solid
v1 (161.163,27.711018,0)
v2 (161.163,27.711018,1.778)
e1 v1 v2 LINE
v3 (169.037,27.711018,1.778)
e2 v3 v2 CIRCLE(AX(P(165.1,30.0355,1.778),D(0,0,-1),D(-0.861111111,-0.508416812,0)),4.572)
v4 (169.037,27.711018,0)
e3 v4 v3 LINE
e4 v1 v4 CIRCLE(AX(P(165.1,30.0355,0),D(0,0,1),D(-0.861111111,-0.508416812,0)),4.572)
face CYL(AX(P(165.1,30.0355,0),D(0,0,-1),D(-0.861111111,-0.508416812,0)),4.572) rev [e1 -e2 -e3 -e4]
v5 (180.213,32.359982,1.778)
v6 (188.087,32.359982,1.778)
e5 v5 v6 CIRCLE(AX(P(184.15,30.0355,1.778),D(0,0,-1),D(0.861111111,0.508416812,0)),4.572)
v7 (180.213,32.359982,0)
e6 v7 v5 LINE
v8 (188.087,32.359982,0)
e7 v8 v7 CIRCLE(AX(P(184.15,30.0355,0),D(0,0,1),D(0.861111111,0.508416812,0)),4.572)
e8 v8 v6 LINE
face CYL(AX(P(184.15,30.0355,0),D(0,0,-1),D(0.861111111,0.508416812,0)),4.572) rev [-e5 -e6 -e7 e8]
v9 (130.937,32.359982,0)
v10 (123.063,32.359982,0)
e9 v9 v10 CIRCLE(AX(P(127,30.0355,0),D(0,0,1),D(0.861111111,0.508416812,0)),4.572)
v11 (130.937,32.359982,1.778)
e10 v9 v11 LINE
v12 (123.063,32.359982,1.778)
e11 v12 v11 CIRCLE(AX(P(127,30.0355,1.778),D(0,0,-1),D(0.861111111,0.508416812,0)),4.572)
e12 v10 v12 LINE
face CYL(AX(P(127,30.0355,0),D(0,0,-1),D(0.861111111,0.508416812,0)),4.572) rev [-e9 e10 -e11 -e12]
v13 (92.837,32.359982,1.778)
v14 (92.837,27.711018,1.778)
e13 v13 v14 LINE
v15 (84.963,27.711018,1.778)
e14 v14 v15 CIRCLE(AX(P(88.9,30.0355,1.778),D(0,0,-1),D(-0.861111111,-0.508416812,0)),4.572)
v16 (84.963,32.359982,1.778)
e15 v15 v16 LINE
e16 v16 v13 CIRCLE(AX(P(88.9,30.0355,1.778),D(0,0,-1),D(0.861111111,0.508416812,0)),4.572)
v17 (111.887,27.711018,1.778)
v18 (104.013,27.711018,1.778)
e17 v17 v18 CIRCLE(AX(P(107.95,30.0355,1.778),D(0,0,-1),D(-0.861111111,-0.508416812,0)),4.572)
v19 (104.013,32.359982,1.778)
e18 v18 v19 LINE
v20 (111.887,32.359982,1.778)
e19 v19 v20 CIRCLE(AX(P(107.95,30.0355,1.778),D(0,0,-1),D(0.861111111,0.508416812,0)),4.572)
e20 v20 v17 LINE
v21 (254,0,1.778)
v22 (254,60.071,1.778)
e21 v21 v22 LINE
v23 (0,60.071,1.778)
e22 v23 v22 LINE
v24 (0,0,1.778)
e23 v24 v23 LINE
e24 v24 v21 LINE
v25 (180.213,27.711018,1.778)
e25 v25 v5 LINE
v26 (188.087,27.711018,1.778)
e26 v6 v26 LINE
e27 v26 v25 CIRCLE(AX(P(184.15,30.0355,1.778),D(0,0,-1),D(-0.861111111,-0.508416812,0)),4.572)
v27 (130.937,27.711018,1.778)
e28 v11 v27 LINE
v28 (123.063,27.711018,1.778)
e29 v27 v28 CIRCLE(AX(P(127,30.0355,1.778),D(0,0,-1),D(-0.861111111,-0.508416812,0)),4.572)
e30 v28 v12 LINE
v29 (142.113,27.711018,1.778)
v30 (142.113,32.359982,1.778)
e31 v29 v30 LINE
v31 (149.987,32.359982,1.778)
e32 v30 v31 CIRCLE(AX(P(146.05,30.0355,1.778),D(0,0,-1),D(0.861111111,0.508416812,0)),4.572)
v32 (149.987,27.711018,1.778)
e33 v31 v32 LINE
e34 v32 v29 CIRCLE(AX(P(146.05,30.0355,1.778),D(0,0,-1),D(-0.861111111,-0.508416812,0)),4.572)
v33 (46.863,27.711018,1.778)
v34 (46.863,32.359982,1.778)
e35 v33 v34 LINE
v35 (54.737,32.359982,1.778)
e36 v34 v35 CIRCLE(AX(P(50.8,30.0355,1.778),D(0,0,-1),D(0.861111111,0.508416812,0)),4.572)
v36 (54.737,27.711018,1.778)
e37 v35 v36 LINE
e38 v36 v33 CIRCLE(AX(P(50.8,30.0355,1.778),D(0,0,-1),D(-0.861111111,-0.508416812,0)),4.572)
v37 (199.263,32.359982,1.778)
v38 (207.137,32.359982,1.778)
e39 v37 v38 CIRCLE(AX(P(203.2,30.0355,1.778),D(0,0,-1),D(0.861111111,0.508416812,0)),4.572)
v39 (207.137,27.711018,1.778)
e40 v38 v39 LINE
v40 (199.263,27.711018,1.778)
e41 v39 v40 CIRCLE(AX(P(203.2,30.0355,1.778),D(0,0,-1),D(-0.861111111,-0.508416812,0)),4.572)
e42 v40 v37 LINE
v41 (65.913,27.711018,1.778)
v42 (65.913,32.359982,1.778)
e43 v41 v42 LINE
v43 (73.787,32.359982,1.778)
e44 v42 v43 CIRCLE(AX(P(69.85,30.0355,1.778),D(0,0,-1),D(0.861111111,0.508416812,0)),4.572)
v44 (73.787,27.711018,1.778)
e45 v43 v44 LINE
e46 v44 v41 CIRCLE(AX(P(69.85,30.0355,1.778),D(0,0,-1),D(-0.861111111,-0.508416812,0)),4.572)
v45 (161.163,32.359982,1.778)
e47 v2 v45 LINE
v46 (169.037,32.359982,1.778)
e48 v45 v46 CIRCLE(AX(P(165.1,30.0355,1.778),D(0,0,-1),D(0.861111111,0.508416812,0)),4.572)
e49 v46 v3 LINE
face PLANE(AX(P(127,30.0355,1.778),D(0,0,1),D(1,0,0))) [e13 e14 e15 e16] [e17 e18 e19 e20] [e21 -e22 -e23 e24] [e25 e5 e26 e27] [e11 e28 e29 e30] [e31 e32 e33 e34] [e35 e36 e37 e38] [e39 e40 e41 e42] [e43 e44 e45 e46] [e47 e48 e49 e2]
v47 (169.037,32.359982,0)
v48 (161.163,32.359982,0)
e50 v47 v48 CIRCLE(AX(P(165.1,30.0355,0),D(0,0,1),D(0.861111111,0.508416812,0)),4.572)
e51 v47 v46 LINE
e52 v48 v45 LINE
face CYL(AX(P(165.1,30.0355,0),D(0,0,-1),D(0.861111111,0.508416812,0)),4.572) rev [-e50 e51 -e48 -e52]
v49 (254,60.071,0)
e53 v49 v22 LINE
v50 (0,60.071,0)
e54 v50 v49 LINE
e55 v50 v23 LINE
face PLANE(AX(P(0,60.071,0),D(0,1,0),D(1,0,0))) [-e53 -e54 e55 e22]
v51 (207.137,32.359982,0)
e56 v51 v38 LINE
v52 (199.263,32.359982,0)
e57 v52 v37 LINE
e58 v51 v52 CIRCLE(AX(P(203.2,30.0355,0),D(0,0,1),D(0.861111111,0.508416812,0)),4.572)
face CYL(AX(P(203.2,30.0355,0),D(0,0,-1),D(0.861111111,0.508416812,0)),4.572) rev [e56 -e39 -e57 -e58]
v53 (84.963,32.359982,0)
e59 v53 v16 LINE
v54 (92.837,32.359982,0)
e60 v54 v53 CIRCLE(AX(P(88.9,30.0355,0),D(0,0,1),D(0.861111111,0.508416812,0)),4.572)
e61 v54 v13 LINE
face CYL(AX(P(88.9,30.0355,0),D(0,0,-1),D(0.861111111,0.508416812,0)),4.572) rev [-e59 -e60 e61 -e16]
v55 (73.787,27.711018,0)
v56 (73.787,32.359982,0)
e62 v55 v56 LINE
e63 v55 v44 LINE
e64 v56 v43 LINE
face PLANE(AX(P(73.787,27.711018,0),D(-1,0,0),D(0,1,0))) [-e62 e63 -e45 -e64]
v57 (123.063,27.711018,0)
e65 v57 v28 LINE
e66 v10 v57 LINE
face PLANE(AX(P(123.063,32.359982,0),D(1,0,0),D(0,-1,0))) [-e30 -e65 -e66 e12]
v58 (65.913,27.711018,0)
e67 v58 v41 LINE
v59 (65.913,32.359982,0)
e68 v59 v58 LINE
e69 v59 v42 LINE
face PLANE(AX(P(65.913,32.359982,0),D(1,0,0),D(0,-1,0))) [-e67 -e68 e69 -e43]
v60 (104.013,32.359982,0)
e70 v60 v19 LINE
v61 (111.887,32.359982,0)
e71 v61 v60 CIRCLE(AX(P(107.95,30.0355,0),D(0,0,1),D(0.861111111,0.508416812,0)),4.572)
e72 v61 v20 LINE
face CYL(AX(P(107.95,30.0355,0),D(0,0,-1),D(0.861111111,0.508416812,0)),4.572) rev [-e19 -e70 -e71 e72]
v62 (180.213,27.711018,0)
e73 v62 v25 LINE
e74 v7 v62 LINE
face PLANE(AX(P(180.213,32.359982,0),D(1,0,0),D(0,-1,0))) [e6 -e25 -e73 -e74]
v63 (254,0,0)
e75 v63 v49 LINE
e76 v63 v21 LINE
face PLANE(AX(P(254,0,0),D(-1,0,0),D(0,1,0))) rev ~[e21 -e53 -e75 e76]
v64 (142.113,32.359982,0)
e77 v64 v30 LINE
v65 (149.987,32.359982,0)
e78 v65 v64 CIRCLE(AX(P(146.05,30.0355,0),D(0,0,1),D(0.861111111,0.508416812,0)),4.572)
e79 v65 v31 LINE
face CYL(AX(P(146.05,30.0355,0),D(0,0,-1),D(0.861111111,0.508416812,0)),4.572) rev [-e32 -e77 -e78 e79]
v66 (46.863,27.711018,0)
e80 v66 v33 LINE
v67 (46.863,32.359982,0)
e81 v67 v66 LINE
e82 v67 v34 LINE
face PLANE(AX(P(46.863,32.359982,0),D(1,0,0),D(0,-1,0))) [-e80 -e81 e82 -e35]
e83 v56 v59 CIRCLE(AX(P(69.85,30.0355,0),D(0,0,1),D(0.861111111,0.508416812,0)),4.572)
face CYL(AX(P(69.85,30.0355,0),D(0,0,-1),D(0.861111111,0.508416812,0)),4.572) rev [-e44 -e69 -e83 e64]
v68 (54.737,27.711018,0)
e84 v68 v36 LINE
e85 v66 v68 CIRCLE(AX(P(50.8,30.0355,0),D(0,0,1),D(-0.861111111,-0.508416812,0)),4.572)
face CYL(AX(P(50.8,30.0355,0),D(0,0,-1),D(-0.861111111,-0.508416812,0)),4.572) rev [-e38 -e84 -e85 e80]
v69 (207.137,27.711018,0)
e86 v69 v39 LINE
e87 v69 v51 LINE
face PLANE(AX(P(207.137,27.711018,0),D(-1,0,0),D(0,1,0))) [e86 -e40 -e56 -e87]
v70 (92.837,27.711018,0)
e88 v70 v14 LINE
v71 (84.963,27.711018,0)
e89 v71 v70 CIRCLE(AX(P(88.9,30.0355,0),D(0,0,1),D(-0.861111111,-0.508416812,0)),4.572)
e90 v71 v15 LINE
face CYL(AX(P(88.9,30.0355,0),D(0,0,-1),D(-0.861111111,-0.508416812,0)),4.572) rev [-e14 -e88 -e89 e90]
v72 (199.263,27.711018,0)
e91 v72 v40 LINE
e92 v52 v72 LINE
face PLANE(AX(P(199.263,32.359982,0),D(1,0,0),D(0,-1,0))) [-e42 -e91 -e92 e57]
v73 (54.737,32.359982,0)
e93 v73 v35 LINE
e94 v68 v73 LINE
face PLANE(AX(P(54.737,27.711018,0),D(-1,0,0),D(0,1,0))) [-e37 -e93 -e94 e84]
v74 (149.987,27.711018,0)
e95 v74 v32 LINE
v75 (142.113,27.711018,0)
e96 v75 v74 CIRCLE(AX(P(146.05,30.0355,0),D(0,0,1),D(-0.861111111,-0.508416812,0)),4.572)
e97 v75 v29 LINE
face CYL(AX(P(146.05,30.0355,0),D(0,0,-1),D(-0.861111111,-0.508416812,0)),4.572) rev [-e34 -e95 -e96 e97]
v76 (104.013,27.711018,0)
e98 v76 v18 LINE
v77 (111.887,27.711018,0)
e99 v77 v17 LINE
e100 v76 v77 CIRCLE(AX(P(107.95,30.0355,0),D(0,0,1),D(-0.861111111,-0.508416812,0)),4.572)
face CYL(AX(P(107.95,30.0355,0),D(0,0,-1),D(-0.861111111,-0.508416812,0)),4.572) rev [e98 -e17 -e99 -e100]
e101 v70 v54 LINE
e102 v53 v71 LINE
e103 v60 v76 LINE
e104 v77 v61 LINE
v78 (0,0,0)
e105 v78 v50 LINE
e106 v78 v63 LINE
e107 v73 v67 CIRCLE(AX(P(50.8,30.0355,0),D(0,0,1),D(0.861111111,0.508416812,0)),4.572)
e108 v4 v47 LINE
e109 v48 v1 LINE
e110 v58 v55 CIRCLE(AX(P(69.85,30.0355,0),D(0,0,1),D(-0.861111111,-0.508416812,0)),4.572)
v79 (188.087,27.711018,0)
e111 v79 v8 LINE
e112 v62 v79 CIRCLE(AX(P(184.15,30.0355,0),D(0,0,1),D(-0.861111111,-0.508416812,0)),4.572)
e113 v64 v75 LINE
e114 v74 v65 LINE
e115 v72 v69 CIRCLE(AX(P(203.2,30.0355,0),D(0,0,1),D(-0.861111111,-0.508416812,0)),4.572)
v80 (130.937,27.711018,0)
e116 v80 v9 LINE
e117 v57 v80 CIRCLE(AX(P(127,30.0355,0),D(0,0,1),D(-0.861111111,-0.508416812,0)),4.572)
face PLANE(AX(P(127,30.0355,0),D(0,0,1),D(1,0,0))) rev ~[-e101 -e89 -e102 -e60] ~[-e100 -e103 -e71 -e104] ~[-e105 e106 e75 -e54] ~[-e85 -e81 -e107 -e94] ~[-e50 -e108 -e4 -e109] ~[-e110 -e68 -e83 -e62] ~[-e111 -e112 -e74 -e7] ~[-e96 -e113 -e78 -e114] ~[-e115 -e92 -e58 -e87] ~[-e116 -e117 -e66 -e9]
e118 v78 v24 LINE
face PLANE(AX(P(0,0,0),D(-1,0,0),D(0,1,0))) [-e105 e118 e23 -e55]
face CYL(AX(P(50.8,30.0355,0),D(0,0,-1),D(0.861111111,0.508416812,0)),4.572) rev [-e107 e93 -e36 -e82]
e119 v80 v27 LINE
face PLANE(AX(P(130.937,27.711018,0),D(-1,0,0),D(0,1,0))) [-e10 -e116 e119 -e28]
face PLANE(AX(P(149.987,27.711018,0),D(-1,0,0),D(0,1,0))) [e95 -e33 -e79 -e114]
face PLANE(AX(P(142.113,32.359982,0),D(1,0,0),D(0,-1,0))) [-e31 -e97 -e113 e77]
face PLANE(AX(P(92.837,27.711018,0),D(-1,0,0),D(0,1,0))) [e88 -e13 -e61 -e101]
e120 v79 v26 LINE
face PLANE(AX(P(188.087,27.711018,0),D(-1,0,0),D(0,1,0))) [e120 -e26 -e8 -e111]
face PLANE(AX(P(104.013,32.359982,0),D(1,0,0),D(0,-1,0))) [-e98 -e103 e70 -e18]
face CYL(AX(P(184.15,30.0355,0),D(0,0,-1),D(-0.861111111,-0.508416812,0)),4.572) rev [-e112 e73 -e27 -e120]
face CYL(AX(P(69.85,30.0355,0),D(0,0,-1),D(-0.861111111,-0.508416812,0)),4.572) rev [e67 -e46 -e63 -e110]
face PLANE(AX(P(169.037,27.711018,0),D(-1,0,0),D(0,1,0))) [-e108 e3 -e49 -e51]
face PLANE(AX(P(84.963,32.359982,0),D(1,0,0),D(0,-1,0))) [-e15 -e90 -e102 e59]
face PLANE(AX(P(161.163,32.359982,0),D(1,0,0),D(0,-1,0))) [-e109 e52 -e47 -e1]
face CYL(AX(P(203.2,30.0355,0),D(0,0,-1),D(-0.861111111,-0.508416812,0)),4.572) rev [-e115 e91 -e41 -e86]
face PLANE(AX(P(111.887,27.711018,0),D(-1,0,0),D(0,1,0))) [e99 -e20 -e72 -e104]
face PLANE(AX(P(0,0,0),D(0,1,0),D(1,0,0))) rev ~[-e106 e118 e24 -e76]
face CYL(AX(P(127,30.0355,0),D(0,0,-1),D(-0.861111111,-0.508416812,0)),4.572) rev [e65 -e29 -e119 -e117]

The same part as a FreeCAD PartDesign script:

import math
import FreeCAD as App
import Part
import Sketcher
Q = App.Units.Quantity


def add_polygon(sketch, points):
    """Adds a closed chain of lines whose ends are joined by coincident constraints."""
    first, n = sketch.GeometryCount, len(points)
    for a, b in zip(points, points[1:] + points[:1]):
        sketch.addGeometry(Part.LineSegment(App.Vector(*a, 0), App.Vector(*b, 0)), False)
    for i in range(n):
        sketch.addConstraint(Sketcher.Constraint("Coincident", first + i, 2, first + (i + 1) % n, 1))

doc = App.newDocument("Part")
body = doc.addObject("PartDesign::Body", "Body")

# Sketch on XY plane
sketch1 = body.newObject("Sketcher::SketchObject", "Sketch")
sketch1.AttachmentSupport = (doc.getObject("XY_Plane"), [""])
sketch1.MapMode = "FlatFace"
add_polygon(sketch1, [(0, 60), (0, 0), (254, 0), (254, 60)])  # lines 0-3
sketch1.addConstraint(Sketcher.Constraint("Vertical", 0))
sketch1.addConstraint(Sketcher.Constraint("Horizontal", 1))
sketch1.addConstraint(Sketcher.Constraint("Vertical", 2))
sketch1.addConstraint(Sketcher.Constraint("Horizontal", 3))
sketch1.addConstraint(Sketcher.Constraint("Coincident", 0, 2, -1, 1))
sketch1.addConstraint(Sketcher.Constraint("DistanceX", 1, 1, 1, 2, Q("10 in")))
sketch1.addConstraint(Sketcher.Constraint("DistanceY", 0, 2, 0, 1, Q("2.365 in")))
pad1 = body.newObject("PartDesign::Pad", "Pad")
pad1.Profile = sketch1
pad1.Length = Q("0.07 in")

# Sketch on XY plane
sketch2 = body.newObject("Sketcher::SketchObject", "Sketch001")
sketch2.AttachmentSupport = (doc.getObject("XY_Plane"), [""])
sketch2.MapMode = "FlatFace"
sketch2.addGeometry(Part.LineSegment(App.Vector(46.9, 32.4, 0), App.Vector(46.9, 27.7, 0)), False)
sketch2.addGeometry(Part.ArcOfCircle(Part.Circle(App.Vector(50.8, 30, 0), App.Vector(0, 0, 1), 4.6), math.radians(-149), math.radians(-31)), False)
sketch2.addGeometry(Part.LineSegment(App.Vector(54.7, 27.7, 0), App.Vector(54.7, 32.4, 0)), False)
sketch2.addGeometry(Part.ArcOfCircle(Part.Circle(App.Vector(50.8, 30, 0), App.Vector(0, 0, 1), 4.6), math.radians(31), math.radians(149)), False)
sketch2.addConstraint(Sketcher.Constraint("Coincident", 0, 2, 1, 1))
sketch2.addConstraint(Sketcher.Constraint("Coincident", 1, 2, 2, 1))
sketch2.addConstraint(Sketcher.Constraint("Coincident", 2, 2, 3, 1))
sketch2.addConstraint(Sketcher.Constraint("Coincident", 3, 2, 0, 1))
sketch2.addConstraint(Sketcher.Constraint("Vertical", 0))
sketch2.addConstraint(Sketcher.Constraint("Vertical", 2))
sketch2.addConstraint(Sketcher.Constraint("Coincident", 3, 3, 1, 3))
sketch2.addConstraint(Sketcher.Constraint("Equal", 1, 3))
sketch2.addConstraint(Sketcher.Constraint("Horizontal", 0, 2, 1, 2))
sketch2.addConstraint(Sketcher.Constraint("Radius", 1, Q("0.18 in")))
sketch2.addConstraint(Sketcher.Constraint("DistanceX", -1, 1, 1, 3, Q("2 in")))
sketch2.addConstraint(Sketcher.Constraint("DistanceX", 0, 2, 1, 2, Q("0.31 in")))
sketch2.addConstraint(Sketcher.Constraint("DistanceY", -1, 1, 1, 3, Q("1.1825 in")))
pocket1 = body.newObject("PartDesign::Pocket", "Pocket")
pocket1.Profile = sketch2
pocket1.Type = "ThroughAll"
pocket1.Reversed = True
doc.recompute()

linearpattern = body.newObject("PartDesign::LinearPattern", "LinearPattern")
linearpattern.Originals = [pocket1]
linearpattern.Direction = (doc.getObject("X_Axis"), [""])
linearpattern.Mode = "offset"
linearpattern.Offset = Q("0.75 in")
linearpattern.Occurrences = 9
body.Tip = linearpattern

doc.recompute()
